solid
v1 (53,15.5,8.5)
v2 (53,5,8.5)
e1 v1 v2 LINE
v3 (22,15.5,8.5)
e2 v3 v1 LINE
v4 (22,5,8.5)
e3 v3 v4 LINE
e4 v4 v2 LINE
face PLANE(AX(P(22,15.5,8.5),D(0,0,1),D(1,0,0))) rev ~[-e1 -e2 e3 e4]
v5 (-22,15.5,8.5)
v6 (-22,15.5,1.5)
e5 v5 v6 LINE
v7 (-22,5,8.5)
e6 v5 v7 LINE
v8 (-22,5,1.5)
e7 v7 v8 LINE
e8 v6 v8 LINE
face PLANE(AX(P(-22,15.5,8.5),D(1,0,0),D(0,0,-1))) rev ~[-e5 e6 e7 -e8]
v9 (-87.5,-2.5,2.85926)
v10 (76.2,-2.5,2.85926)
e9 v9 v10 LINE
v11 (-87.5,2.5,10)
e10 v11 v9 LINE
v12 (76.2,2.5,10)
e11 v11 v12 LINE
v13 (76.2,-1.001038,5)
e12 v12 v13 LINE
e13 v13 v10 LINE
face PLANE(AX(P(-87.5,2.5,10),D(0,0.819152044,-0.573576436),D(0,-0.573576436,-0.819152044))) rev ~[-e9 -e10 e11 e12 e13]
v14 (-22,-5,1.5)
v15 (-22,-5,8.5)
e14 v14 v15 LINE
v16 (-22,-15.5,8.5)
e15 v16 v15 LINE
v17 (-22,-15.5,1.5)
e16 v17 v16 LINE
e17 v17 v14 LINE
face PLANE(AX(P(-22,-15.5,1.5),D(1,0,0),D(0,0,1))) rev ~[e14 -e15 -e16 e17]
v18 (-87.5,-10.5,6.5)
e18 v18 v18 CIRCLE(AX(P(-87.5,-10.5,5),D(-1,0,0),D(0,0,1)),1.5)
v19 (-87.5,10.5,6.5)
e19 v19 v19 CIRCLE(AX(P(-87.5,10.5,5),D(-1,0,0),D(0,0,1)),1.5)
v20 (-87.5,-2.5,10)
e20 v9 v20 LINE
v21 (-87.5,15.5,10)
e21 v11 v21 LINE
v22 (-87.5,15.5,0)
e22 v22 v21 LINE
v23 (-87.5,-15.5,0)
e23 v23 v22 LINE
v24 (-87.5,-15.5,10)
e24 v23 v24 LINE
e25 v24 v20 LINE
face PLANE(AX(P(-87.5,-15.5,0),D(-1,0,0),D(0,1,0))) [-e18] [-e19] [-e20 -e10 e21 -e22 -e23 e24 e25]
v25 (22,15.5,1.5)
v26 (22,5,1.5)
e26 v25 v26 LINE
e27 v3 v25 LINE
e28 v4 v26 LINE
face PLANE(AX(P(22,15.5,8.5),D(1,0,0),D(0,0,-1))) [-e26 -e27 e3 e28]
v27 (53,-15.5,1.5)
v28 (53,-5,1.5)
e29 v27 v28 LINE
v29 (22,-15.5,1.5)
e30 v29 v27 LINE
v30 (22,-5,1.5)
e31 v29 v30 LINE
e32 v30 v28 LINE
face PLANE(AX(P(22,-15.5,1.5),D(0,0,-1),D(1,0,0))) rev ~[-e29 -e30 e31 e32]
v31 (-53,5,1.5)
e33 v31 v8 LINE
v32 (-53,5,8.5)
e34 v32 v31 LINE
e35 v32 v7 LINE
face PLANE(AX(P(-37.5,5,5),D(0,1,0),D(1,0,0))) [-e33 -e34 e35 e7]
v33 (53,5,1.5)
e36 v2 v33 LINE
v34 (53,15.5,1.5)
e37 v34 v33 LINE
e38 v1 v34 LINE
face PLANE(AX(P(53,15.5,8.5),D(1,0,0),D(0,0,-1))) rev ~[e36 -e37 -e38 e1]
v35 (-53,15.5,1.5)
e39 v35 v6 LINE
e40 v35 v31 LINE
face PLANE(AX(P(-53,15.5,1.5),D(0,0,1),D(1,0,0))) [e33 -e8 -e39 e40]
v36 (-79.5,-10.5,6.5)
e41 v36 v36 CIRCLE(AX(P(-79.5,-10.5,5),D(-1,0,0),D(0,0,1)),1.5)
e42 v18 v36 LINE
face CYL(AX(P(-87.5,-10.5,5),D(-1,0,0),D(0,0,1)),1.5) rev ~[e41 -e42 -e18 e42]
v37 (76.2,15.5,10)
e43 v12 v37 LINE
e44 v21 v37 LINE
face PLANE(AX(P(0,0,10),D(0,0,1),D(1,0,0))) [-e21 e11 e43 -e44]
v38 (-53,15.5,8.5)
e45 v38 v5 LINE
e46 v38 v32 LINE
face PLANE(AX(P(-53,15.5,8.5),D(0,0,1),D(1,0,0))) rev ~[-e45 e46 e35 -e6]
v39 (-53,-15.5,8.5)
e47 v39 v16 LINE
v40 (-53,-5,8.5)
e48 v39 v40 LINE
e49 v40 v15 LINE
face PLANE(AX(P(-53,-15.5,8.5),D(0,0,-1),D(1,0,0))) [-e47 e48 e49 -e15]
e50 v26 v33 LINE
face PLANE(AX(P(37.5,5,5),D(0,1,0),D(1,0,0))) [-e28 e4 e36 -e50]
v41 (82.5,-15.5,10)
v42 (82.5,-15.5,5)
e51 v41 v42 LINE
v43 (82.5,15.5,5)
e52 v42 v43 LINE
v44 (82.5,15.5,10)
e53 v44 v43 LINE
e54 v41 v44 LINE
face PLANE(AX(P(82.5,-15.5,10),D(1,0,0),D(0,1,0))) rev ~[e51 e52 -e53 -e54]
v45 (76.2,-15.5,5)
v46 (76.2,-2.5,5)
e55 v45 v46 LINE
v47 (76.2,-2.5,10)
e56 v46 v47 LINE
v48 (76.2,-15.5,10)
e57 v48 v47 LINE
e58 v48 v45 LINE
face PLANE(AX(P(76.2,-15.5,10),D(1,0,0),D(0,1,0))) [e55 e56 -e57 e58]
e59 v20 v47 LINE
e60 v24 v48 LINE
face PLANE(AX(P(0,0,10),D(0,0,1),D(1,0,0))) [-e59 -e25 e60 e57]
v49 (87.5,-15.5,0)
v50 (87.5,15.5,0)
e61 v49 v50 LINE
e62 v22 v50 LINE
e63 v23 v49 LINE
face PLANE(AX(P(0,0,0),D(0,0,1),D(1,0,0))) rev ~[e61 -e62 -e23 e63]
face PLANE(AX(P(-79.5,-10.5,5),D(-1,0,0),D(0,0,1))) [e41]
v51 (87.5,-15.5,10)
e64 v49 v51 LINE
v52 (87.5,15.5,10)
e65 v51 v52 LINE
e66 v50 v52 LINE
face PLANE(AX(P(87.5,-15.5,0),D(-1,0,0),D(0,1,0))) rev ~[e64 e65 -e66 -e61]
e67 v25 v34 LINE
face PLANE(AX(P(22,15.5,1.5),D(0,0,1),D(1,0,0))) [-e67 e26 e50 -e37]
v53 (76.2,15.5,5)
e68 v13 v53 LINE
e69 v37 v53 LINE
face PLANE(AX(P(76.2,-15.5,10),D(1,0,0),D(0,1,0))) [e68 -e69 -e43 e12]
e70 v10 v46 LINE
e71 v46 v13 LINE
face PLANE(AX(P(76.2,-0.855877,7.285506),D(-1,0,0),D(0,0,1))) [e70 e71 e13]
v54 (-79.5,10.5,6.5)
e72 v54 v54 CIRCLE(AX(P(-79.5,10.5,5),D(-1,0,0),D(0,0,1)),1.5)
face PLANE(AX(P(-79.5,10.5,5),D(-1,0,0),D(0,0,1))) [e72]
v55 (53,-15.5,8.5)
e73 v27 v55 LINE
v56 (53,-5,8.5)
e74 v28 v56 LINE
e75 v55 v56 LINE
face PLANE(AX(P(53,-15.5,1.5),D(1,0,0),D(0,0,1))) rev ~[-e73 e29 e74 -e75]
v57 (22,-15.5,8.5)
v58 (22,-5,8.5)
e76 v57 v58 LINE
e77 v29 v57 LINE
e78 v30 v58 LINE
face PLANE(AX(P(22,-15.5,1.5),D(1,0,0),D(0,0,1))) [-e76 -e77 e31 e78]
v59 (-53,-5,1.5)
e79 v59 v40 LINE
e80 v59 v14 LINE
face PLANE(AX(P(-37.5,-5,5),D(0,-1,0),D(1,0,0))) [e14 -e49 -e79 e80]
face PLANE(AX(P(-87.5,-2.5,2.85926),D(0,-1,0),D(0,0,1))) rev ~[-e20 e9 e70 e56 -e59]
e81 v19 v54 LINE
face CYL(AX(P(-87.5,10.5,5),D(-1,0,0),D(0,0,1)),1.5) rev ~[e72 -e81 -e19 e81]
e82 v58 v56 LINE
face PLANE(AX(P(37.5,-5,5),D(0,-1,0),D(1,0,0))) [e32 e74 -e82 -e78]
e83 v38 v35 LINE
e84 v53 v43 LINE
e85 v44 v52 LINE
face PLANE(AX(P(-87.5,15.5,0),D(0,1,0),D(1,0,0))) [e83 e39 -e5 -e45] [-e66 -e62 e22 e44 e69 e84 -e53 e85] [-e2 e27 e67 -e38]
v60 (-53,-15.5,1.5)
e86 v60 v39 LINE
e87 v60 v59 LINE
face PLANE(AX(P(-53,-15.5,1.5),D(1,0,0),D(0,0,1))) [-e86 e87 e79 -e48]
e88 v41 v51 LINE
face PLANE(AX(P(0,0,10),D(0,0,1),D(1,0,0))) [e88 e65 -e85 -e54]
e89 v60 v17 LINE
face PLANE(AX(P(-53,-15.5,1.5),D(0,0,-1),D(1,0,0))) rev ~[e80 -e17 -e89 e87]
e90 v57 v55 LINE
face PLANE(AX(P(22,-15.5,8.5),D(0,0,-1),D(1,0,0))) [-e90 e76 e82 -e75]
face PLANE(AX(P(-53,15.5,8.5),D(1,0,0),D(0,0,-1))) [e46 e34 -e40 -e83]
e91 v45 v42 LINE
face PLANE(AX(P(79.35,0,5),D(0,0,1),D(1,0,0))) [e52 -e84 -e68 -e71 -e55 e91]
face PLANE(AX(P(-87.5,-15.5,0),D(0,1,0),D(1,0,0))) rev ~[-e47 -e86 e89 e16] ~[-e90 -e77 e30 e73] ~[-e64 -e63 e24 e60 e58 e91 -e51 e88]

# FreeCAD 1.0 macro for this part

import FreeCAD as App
import Part
import Sketcher
from FreeCAD import Vector
Q = App.Units.Quantity


def add_polygon(sketch, points):
    """Adds a closed chain of lines whose ends are joined by coincident constraints."""
    first, n = sketch.GeometryCount, len(points)
    for a, b in zip(points, points[1:] + points[:1]):
        sketch.addGeometry(Part.LineSegment(App.Vector(*a, 0), App.Vector(*b, 0)), False)
    for i in range(n):
        sketch.addConstraint(Sketcher.Constraint("Coincident", first + i, 2, first + (i + 1) % n, 1))

doc = App.newDocument("Part")
body = doc.addObject("PartDesign::Body", "Body")

sketch1 = body.newObject("Sketcher::SketchObject", "Sketch")
sketch1.AttachmentSupport = (doc.getObject("XY_Plane"), [""])
sketch1.MapMode = "FlatFace"
add_polygon(sketch1, [(-88, 16), (-88, -16), (88, -16), (88, 16)])
sketch1.addConstraint(Sketcher.Constraint("Vertical", 0))
sketch1.addConstraint(Sketcher.Constraint("Horizontal", 1))
sketch1.addConstraint(Sketcher.Constraint("Vertical", 2))
sketch1.addConstraint(Sketcher.Constraint("Horizontal", 3))
sketch1.addConstraint(Sketcher.Constraint("Symmetric", 0, 2, 2, 2, -1, 1))
sketch1.addConstraint(Sketcher.Constraint("DistanceX", 1, 1, 1, 2, Q("175 mm")))
sketch1.addConstraint(Sketcher.Constraint("DistanceY", 0, 2, 0, 1, Q("31 mm")))
pad1 = body.newObject("PartDesign::Pad", "Pad")
pad1.Profile = sketch1
pad1.Length = 10

sketch2 = body.newObject("Sketcher::SketchObject", "Sketch001")
sketch2.AttachmentSupport = (doc.getObject("XZ_Plane"), [""])
sketch2.MapMode = "FlatFace"
sketch2.AttachmentOffset = App.Placement(Vector(0, 0, -15.5), App.Rotation())
add_polygon(sketch2, [(-53, 2), (-53, 8), (-22, 8), (-22, 2)])
add_polygon(sketch2, [(22, 2), (22, 8), (53, 8), (53, 2)])
sketch2.addConstraint(Sketcher.Constraint("Vertical", 0))
sketch2.addConstraint(Sketcher.Constraint("Horizontal", 1))
sketch2.addConstraint(Sketcher.Constraint("Vertical", 2))
sketch2.addConstraint(Sketcher.Constraint("Horizontal", 3))
sketch2.addConstraint(Sketcher.Constraint("Vertical", 4))
sketch2.addConstraint(Sketcher.Constraint("Horizontal", 5))
sketch2.addConstraint(Sketcher.Constraint("Vertical", 6))
sketch2.addConstraint(Sketcher.Constraint("Horizontal", 7))
sketch2.addConstraint(Sketcher.Constraint("Symmetric", 1, 2, 4, 2, -2))
sketch2.addConstraint(Sketcher.Constraint("Symmetric", 3, 2, 6, 2, -2))
sketch2.addConstraint(Sketcher.Constraint("DistanceX", 1, 1, 1, 2, Q("31 mm")))
sketch2.addConstraint(Sketcher.Constraint("DistanceY", 0, 1, 0, 2, Q("7 mm")))
sketch2.addConstraint(Sketcher.Constraint("DistanceX", 0, 2, -1, 1, Q("53 mm")))
sketch2.addConstraint(Sketcher.Constraint("DistanceY", -1, 1, 0, 2, Q("8.5 mm")))
pocket1 = body.newObject("PartDesign::Pocket", "Pocket")
pocket1.Profile = sketch2
pocket1.Length = 10.5
pocket1.Reversed = True

sketch3 = body.newObject("Sketcher::SketchObject", "Sketch002")
sketch3.AttachmentSupport = (doc.getObject("XZ_Plane"), [""])
sketch3.MapMode = "FlatFace"
sketch3.AttachmentOffset = App.Placement(Vector(0, 0, 15.5), App.Rotation())
add_polygon(sketch3, [(-53, 8), (-53, 2), (-22, 2), (-22, 8)])
add_polygon(sketch3, [(22, 8), (22, 2), (53, 2), (53, 8)])
sketch3.addConstraint(Sketcher.Constraint("Vertical", 0))
sketch3.addConstraint(Sketcher.Constraint("Horizontal", 1))
sketch3.addConstraint(Sketcher.Constraint("Vertical", 2))
sketch3.addConstraint(Sketcher.Constraint("Horizontal", 3))
sketch3.addConstraint(Sketcher.Constraint("Vertical", 4))
sketch3.addConstraint(Sketcher.Constraint("Horizontal", 5))
sketch3.addConstraint(Sketcher.Constraint("Vertical", 6))
sketch3.addConstraint(Sketcher.Constraint("Horizontal", 7))
sketch3.addConstraint(Sketcher.Constraint("Symmetric", 1, 2, 4, 2, -2))
sketch3.addConstraint(Sketcher.Constraint("Symmetric", 3, 2, 6, 2, -2))
sketch3.addConstraint(Sketcher.Constraint("DistanceX", 1, 1, 1, 2, Q("31 mm")))
sketch3.addConstraint(Sketcher.Constraint("DistanceY", 0, 2, 0, 1, Q("7 mm")))
sketch3.addConstraint(Sketcher.Constraint("DistanceX", 0, 2, -1, 1, Q("53 mm")))
sketch3.addConstraint(Sketcher.Constraint("DistanceY", -1, 1, 0, 2, Q("1.5 mm")))
pocket2 = body.newObject("PartDesign::Pocket", "Pocket001")
pocket2.Profile = sketch3
pocket2.Length = 10.5

sketch4 = body.newObject("Sketcher::SketchObject", "Sketch003")
sketch4.AttachmentSupport = (doc.getObject("YZ_Plane"), [""])
sketch4.MapMode = "FlatFace"
sketch4.AttachmentOffset = App.Placement(Vector(0, 0, -87.5), App.Rotation())
sketch4.addGeometry(Part.Circle(Vector(10.5, 5, 0), Vector(0, 0, 1), 1.5), False)
sketch4.addGeometry(Part.Circle(Vector(-10.5, 5, 0), Vector(0, 0, 1), 1.5), False)
sketch4.addConstraint(Sketcher.Constraint("Equal", 0, 1))
sketch4.addConstraint(Sketcher.Constraint("Symmetric", 0, 3, 1, 3, -2))
sketch4.addConstraint(Sketcher.Constraint("Diameter", 0, Q("3 mm")))
sketch4.addConstraint(Sketcher.Constraint("DistanceY", -1, 1, 0, 3, Q("5 mm")))
sketch4.addConstraint(Sketcher.Constraint("DistanceX", 1, 3, 0, 3, Q("21 mm")))
pocket3 = body.newObject("PartDesign::Pocket", "Pocket002")
pocket3.Profile = sketch4
pocket3.Length = 8
pocket3.Reversed = True

sketch5 = body.newObject("Sketcher::SketchObject", "Sketch004")
sketch5.AttachmentSupport = (doc.getObject("XY_Plane"), [""])
sketch5.MapMode = "FlatFace"
sketch5.AttachmentOffset = App.Placement(Vector(0, 0, 10), App.Rotation())
add_polygon(sketch5, [(76, 16), (76, -16), (82, -16), (82, 16)])
sketch5.addConstraint(Sketcher.Constraint("Vertical", 0))
sketch5.addConstraint(Sketcher.Constraint("Horizontal", 1))
sketch5.addConstraint(Sketcher.Constraint("Vertical", 2))
sketch5.addConstraint(Sketcher.Constraint("Horizontal", 3))
sketch5.addConstraint(Sketcher.Constraint("DistanceY", 0, 2, 0, 1, Q("31 mm")))
sketch5.addConstraint(Sketcher.Constraint("DistanceX", 1, 1, 1, 2, Q("6.3 mm")))
sketch5.addConstraint(Sketcher.Constraint("DistanceX", -1, 1, 0, 2, Q("76.2 mm")))
sketch5.addConstraint(Sketcher.Constraint("DistanceY", 0, 2, -1, 1, Q("15.5 mm")))
pocket4 = body.newObject("PartDesign::Pocket", "Pocket003")
pocket4.Profile = sketch5
pocket4.Length = 5

sketch6 = body.newObject("Sketcher::SketchObject", "Sketch005")
sketch6.AttachmentSupport = (doc.getObject("YZ_Plane"), [""])
sketch6.MapMode = "FlatFace"
sketch6.AttachmentOffset = App.Placement(Vector(0, 0, -87.5), App.Rotation())
add_polygon(sketch6, [(2, 10), (-2, 3), (-2, 10)])
sketch6.addConstraint(Sketcher.Constraint("Vertical", 1))
sketch6.addConstraint(Sketcher.Constraint("Horizontal", 2))
sketch6.addConstraint(Sketcher.Constraint("DistanceX", 2, 1, 2, 2, Q("5 mm")))
sketch6.addConstraint(Sketcher.Constraint("Angle", 0, Q("-125 deg")))
sketch6.addConstraint(Sketcher.Constraint("DistanceY", -1, 1, 1, 2, Q("10 mm")))
sketch6.addConstraint(Sketcher.Constraint("DistanceX", 0, 2, -1, 1, Q("2.5 mm")))
pocket5 = body.newObject("PartDesign::Pocket", "Pocket004")
pocket5.Profile = sketch6
pocket5.Length = 163.7
pocket5.Reversed = True

doc.recompute()
